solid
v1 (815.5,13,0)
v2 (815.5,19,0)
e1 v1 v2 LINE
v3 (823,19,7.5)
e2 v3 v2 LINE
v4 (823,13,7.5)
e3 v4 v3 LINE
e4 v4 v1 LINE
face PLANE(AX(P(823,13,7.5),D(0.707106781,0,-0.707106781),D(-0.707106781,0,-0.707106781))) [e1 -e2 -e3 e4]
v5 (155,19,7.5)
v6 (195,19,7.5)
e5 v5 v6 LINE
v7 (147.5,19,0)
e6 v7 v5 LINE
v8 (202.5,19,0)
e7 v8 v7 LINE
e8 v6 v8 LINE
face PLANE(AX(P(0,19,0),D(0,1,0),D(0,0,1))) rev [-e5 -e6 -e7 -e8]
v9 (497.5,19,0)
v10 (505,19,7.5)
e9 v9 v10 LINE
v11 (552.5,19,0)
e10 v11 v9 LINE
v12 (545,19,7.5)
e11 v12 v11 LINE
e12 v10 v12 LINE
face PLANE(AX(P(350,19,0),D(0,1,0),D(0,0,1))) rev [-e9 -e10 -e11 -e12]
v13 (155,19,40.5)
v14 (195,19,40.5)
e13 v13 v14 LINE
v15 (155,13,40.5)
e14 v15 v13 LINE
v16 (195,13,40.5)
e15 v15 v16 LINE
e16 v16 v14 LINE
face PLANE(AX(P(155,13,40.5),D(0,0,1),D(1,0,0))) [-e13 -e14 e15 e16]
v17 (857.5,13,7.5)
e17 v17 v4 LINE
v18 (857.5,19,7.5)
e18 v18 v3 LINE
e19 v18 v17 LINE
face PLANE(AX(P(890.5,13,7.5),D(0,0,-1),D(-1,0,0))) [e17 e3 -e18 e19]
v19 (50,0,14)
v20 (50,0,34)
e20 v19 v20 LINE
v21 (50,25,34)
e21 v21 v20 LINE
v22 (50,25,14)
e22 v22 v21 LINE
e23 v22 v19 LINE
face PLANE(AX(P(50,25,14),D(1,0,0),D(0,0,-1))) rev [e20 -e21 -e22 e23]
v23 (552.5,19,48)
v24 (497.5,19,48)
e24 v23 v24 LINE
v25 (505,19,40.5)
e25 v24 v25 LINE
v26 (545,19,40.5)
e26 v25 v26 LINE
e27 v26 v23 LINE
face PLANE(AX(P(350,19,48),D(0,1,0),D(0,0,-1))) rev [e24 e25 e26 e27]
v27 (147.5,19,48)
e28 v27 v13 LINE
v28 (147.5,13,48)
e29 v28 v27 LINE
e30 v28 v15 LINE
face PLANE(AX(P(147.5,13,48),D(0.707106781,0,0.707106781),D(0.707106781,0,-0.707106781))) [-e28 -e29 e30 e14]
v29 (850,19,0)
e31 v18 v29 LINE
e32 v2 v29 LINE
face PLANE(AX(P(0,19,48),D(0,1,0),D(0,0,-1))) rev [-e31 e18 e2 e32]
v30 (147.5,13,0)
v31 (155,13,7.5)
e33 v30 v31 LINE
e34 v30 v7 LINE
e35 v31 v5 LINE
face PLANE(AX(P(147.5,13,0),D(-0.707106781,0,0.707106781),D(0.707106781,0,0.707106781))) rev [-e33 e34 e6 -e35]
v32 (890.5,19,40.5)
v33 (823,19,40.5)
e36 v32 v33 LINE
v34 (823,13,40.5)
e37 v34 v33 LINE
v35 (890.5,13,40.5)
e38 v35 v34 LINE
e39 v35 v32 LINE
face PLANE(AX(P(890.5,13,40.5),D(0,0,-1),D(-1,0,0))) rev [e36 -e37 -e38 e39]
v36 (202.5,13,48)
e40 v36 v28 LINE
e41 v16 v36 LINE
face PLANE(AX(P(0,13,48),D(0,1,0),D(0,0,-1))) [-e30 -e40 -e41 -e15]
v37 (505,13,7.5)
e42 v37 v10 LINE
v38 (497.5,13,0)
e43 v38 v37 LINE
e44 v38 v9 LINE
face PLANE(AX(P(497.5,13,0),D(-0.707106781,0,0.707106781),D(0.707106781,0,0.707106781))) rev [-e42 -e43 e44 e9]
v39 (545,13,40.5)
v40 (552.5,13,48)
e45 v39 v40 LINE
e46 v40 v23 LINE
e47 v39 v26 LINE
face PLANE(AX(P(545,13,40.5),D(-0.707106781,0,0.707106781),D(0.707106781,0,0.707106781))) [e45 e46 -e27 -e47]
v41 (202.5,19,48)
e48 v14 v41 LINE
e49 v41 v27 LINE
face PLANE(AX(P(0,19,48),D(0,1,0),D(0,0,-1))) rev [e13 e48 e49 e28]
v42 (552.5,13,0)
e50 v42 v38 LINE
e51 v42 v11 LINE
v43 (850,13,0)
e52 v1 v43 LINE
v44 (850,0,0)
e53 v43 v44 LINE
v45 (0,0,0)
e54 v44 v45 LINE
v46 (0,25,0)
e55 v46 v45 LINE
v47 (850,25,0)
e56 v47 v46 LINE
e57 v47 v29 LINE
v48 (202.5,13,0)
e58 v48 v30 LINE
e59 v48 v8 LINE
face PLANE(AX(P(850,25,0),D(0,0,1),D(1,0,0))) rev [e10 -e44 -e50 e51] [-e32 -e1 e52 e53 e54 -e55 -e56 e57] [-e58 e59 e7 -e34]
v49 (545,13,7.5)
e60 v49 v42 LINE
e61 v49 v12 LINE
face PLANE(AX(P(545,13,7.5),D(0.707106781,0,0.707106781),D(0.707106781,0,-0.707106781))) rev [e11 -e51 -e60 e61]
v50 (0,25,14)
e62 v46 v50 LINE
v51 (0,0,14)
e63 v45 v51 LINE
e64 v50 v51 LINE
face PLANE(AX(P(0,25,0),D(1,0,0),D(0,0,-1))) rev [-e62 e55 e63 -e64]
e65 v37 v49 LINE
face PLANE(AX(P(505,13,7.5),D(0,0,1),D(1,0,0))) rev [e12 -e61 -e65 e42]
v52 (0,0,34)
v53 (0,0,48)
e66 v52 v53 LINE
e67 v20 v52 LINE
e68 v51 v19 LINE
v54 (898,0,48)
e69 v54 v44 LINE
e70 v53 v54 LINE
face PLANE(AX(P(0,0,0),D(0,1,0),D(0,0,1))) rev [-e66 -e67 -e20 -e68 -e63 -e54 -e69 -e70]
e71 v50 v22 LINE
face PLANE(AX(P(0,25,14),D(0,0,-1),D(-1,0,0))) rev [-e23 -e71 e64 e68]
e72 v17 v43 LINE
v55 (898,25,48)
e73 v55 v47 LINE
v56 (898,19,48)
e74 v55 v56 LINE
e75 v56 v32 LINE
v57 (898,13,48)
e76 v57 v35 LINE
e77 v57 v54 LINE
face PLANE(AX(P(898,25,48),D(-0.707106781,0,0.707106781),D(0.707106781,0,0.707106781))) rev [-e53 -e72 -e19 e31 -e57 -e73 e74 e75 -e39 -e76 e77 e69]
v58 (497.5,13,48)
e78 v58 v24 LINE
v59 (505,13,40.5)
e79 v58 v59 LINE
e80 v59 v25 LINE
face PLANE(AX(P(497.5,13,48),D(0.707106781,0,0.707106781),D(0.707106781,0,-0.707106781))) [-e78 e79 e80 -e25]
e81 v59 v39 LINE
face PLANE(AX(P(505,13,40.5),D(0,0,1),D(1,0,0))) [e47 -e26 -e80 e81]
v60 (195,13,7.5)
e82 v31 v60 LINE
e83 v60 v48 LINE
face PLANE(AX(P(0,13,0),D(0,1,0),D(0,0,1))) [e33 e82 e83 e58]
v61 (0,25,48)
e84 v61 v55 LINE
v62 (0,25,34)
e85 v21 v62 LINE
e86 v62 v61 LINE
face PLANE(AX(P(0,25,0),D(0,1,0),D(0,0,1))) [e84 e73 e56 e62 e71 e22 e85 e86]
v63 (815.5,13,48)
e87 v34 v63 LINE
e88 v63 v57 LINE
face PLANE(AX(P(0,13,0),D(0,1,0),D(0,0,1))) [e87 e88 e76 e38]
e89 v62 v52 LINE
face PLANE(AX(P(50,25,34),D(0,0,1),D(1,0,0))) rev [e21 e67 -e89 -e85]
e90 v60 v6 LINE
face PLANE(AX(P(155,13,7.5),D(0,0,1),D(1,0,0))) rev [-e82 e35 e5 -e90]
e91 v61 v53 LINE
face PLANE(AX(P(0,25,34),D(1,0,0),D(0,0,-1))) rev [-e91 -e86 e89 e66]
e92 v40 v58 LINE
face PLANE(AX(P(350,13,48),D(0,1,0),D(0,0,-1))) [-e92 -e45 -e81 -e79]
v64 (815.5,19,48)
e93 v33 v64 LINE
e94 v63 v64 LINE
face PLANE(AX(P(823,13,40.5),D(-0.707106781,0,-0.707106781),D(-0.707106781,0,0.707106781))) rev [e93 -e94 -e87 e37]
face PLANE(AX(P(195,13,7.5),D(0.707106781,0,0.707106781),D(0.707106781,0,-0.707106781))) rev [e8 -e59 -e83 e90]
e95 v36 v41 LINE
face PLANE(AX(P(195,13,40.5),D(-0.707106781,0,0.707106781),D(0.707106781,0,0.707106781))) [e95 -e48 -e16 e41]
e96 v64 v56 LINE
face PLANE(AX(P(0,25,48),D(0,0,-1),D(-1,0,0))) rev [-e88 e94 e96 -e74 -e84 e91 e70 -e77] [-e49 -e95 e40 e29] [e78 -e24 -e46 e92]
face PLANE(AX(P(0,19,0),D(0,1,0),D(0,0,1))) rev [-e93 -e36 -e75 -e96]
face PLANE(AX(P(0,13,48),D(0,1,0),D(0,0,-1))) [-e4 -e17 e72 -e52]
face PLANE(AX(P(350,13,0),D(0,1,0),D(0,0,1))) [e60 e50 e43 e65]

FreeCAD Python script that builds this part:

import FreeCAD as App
import Part
import Sketcher

V = App.Vector
Q = App.Units.Quantity


def add_polygon(sketch, points):
    """Adds a closed chain of lines whose ends are joined by coincident constraints."""
    first, n = sketch.GeometryCount, len(points)
    for a, b in zip(points, points[1:] + points[:1]):
        sketch.addGeometry(Part.LineSegment(App.Vector(*a, 0), App.Vector(*b, 0)), False)
    for i in range(n):
        sketch.addConstraint(Sketcher.Constraint("Coincident", first + i, 2, first + (i + 1) % n, 1))

doc = App.newDocument("Part")
body = doc.addObject("PartDesign::Body", "Body")

sketch1 = body.newObject("Sketcher::SketchObject", "Sketch")
sketch1.AttachmentSupport = (doc.getObject("XZ_Plane"), [""])
sketch1.MapMode = "FlatFace"
add_polygon(sketch1, [(0, 0), (0, 14), (50, 14), (50, 34), (0, 34), (0, 48), (898, 48), (850, 0)])
sketch1.addConstraint(Sketcher.Constraint("Vertical", 0))
sketch1.addConstraint(Sketcher.Constraint("Horizontal", 1))
sketch1.addConstraint(Sketcher.Constraint("Vertical", 2))
sketch1.addConstraint(Sketcher.Constraint("Horizontal", 3))
sketch1.addConstraint(Sketcher.Constraint("Vertical", 4))
sketch1.addConstraint(Sketcher.Constraint("Horizontal", 5))
sketch1.addConstraint(Sketcher.Constraint("Horizontal", 7))
sketch1.addConstraint(Sketcher.Constraint("Coincident", 7, 2, -1, 1))
sketch1.addConstraint(Sketcher.Constraint("PointOnObject", 3, 2, -2))
sketch1.addConstraint(Sketcher.Constraint("Equal", 0, 4))
sketch1.addConstraint(Sketcher.Constraint("DistanceX", 1, 1, 1, 2, Q("50 mm")))
sketch1.addConstraint(Sketcher.Constraint("DistanceX", 5, 1, 5, 2, Q("898 mm")))
sketch1.addConstraint(Sketcher.Constraint("DistanceX", 7, 2, 7, 1, Q("850 mm")))
sketch1.addConstraint(Sketcher.Constraint("DistanceY", 0, 1, 0, 2, Q("14 mm")))
sketch1.addConstraint(Sketcher.Constraint("DistanceY", 2, 1, 2, 2, Q("20 mm")))
pad1 = body.newObject("PartDesign::Pad", "Pad")
pad1.Profile = sketch1
pad1.Length = 25
pad1.Reversed = True

sketch2 = body.newObject("Sketcher::SketchObject", "Sketch001")
sketch2.AttachmentSupport = (doc.getObject("XZ_Plane"), [""])
sketch2.MapMode = "FlatFace"
sketch2.AttachmentOffset = App.Placement(V(0, 0, -19), App.Rotation())
add_polygon(sketch2, [(147.5, 0), (155, 7.5), (195, 7.5), (202.5, 0)])
sketch2.addConstraint(Sketcher.Constraint("Horizontal", 1))
sketch2.addConstraint(Sketcher.Constraint("Horizontal", 3))
sketch2.addConstraint(Sketcher.Constraint("PointOnObject", 2, 2, -1))
sketch2.addConstraint(Sketcher.Constraint("Perpendicular", 0, 2))
sketch2.addConstraint(Sketcher.Constraint("Equal", 0, 2))
sketch2.addConstraint(Sketcher.Constraint("DistanceX", 1, 1, 1, 2, Q("40 mm")))
sketch2.addConstraint(Sketcher.Constraint("DistanceX", 3, 2, 3, 1, Q("55 mm")))
sketch2.addConstraint(Sketcher.Constraint("DistanceX", -1, 1, 0, 2, Q("155 mm")))
pocket1 = body.newObject("PartDesign::Pocket", "Pocket")
pocket1.Profile = sketch2
pocket1.Length = 6
pocket1.Reversed = True
doc.recompute()

linearpattern = body.newObject("PartDesign::LinearPattern", "LinearPattern")
linearpattern.Originals = [pocket1]
linearpattern.Direction = (doc.getObject("X_Axis"), [""])
linearpattern.Mode = "offset"
linearpattern.Offset = 350
linearpattern.Occurrences = 2
body.Tip = linearpattern
doc.recompute()

datumplane = body.newObject("PartDesign::Plane", "DatumPlane")
datumplane.AttachmentSupport = (doc.getObject("XY_Plane"), [""])
datumplane.MapMode = "FlatFace"
datumplane.AttachmentOffset = App.Placement(V(0, 0, 24), App.Rotation())
mirrored = body.newObject("PartDesign::Mirrored", "Mirrored")
mirrored.Originals = [pocket1]
mirrored.MirrorPlane = (datumplane, [""])
body.Tip = mirrored

sketch3 = body.newObject("Sketcher::SketchObject", "Sketch002")
sketch3.AttachmentSupport = (doc.getObject("XZ_Plane"), [""])
sketch3.MapMode = "FlatFace"
sketch3.AttachmentOffset = App.Placement(V(0, 0, -19), App.Rotation())
add_polygon(sketch3, [(505, 40.5), (497.5, 48), (552.5, 48), (545, 40.5)])
sketch3.addConstraint(Sketcher.Constraint("Horizontal", 1))
sketch3.addConstraint(Sketcher.Constraint("Horizontal", 3))
sketch3.addConstraint(Sketcher.Constraint("Perpendicular", 0, 2))
sketch3.addConstraint(Sketcher.Constraint("Equal", 0, 2))
sketch3.addConstraint(Sketcher.Constraint("DistanceX", 1, 1, 1, 2, Q("55 mm")))
sketch3.addConstraint(Sketcher.Constraint("DistanceX", 3, 2, 3, 1, Q("40 mm")))
sketch3.addConstraint(Sketcher.Constraint("DistanceY", -1, 1, 0, 2, Q("48 mm")))
sketch3.addConstraint(Sketcher.Constraint("DistanceX", -1, 1, 2, 2, Q("545 mm")))
pocket2 = body.newObject("PartDesign::Pocket", "Pocket001")
pocket2.Profile = sketch3
pocket2.Length = 6
pocket2.Reversed = True

sketch4 = body.newObject("Sketcher::SketchObject", "Sketch003")
sketch4.AttachmentSupport = (doc.getObject("XZ_Plane"), [""])
sketch4.MapMode = "FlatFace"
sketch4.AttachmentOffset = App.Placement(V(0, 0, -19), App.Rotation())
add_polygon(sketch4, [(890.5, 40.5), (823, 40.5), (815.5, 48), (898, 48)])
sketch4.addConstraint(Sketcher.Constraint("Horizontal", 0))
sketch4.addConstraint(Sketcher.Constraint("Horizontal", 2))
sketch4.addConstraint(Sketcher.Constraint("Perpendicular", 1, 3))
sketch4.addConstraint(Sketcher.Constraint("Equal", 1, 3))
sketch4.addConstraint(Sketcher.Constraint("DistanceX", 0, 2, 0, 1, Q("67.5 mm")))
sketch4.addConstraint(Sketcher.Constraint("DistanceX", 2, 1, 2, 2, Q("82.5 mm")))
sketch4.addConstraint(Sketcher.Constraint("DistanceX", -1, 1, 0, 2, Q("823 mm")))
sketch4.addConstraint(Sketcher.Constraint("DistanceY", -1, 1, 1, 2, Q("48 mm")))
pocket3 = body.newObject("PartDesign::Pocket", "Pocket002")
pocket3.Profile = sketch4
pocket3.Length = 6
pocket3.Reversed = True
doc.recompute()

datumplane2 = body.newObject("PartDesign::Plane", "DatumPlane001")
datumplane2.AttachmentSupport = (doc.getObject("XY_Plane"), [""])
datumplane2.MapMode = "FlatFace"
datumplane2.AttachmentOffset = App.Placement(V(0, 0, 24), App.Rotation())
mirrored2 = body.newObject("PartDesign::Mirrored", "Mirrored001")
mirrored2.Originals = [pocket3]
mirrored2.MirrorPlane = (datumplane2, [""])
body.Tip = mirrored2

doc.recompute()
